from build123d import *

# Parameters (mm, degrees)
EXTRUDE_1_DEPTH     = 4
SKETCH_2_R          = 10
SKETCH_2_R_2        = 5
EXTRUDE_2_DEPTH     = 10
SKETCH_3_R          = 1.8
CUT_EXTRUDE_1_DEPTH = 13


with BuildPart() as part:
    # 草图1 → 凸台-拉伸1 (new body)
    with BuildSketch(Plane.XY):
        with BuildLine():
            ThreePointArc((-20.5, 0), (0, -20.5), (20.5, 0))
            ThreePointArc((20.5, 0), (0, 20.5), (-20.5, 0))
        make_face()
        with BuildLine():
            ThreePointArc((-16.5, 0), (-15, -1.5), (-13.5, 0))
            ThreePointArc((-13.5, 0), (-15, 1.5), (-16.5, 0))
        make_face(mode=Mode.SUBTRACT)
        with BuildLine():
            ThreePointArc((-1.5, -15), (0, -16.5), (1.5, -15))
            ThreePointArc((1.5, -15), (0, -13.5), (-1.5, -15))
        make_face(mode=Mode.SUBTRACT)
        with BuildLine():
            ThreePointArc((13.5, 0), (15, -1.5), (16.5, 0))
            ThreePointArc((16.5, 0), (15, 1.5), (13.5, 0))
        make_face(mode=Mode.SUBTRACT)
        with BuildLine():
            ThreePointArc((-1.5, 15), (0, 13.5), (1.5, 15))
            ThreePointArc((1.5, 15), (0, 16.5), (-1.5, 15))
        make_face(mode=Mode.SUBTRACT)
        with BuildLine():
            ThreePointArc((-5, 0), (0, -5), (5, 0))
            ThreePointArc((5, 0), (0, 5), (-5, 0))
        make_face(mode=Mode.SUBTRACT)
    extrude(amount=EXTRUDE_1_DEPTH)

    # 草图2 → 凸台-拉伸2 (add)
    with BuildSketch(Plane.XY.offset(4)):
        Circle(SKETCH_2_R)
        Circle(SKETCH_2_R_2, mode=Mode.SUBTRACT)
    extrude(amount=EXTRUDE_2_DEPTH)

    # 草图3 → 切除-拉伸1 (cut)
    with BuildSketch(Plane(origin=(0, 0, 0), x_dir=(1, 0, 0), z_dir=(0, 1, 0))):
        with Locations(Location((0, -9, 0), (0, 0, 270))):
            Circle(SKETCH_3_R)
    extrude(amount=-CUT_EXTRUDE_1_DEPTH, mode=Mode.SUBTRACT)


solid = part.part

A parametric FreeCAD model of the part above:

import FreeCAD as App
import Part
import Sketcher

doc = App.newDocument("Part")
params = doc.addObject("Spreadsheet::Sheet", "Params")
for row, (alias, value) in enumerate([
    ("sketch1_diameter", "41 mm"),
    ("sketch1_diameter2", "3 mm"),
    ("sketch1_diameter3", "10 mm"),
    ("pad1_length", "4 mm"),
    ("sketch2_diameter", "20 mm"),
    ("sketch2_diameter2", "10 mm"),
    ("pad2_length", "10 mm"),
    ("sketch3_diameter", "3.6 mm"),
    ("pocket1_length", "13 mm"),
], start=1):
    params.set(f"A{row}", alias)
    params.set(f"B{row}", "=" + value)
    params.setAlias(f"B{row}", alias)

body = doc.addObject("PartDesign::Body", "Body")

sketch1 = body.newObject("Sketcher::SketchObject", "Sketch")
sketch1.AttachmentSupport = (doc.getObject("XY_Plane"), [""])
sketch1.MapMode = "FlatFace"
sketch1.addGeometry([
    Part.Circle(App.Vector(0, 0, 0), App.Vector(0, 0, 1), 20.5),
    Part.Circle(App.Vector(0, -15, 0), App.Vector(0, 0, 1), 1.5),
    Part.Circle(App.Vector(-15, 0, 0), App.Vector(0, 0, 1), 1.5),
    Part.Circle(App.Vector(0, 0, 0), App.Vector(0, 0, 1), 5),
    Part.Circle(App.Vector(15, 0, 0), App.Vector(0, 0, 1), 1.5),
    Part.Circle(App.Vector(0, 15, 0), App.Vector(0, 0, 1), 1.5),
], False)
sketch1.addConstraint([
    Sketcher.Constraint("Coincident", 0, 3, -1, 1),
    Sketcher.Constraint("Coincident", 3, 3, -1, 1),
    Sketcher.Constraint("Equal", 1, 2),
    Sketcher.Constraint("Equal", 2, 4),
    Sketcher.Constraint("Equal", 4, 5),
    Sketcher.Constraint("Symmetric", 2, 3, 4, 3, -1, 1),
    Sketcher.Constraint("Symmetric", 1, 3, 5, 3, -1, 1),
    Sketcher.Constraint("PointOnObject", 1, 3, -2),
    Sketcher.Constraint("PointOnObject", 2, 3, -1),
    Sketcher.Constraint("Diameter", 0, 41.0),
    Sketcher.Constraint("Diameter", 1, 3.0),
    Sketcher.Constraint("Diameter", 3, 10.0),
    Sketcher.Constraint("DistanceY", 1, 3, -1, 1, 15.0),
    Sketcher.Constraint("DistanceX", 2, 3, -1, 1, 15.0),
])
sketch1.setExpression("Constraints[9]", "Params.sketch1_diameter")
sketch1.setExpression("Constraints[10]", "Params.sketch1_diameter2")
sketch1.setExpression("Constraints[11]", "Params.sketch1_diameter3")
pad1 = body.newObject("PartDesign::Pad", "Pad")
pad1.Profile = sketch1
pad1.setExpression("Length", "Params.pad1_length")

sketch2 = body.newObject("Sketcher::SketchObject", "Sketch001")
sketch2.AttachmentSupport = (doc.getObject("XY_Plane"), [""])
sketch2.MapMode = "FlatFace"
sketch2.AttachmentOffset = App.Placement(App.Vector(0, 0, 4), App.Rotation())
sketch2.addGeometry([
    Part.Circle(App.Vector(0, 0, 0), App.Vector(0, 0, 1), 10),
    Part.Circle(App.Vector(0, 0, 0), App.Vector(0, 0, 1), 5),
], False)
sketch2.addConstraint([
    Sketcher.Constraint("Coincident", 0, 3, -1, 1),
    Sketcher.Constraint("Coincident", 1, 3, -1, 1),
    Sketcher.Constraint("Diameter", 0, 20.0),
    Sketcher.Constraint("Diameter", 1, 10.0),
])
sketch2.setExpression("Constraints[2]", "Params.sketch2_diameter")
sketch2.setExpression("Constraints[3]", "Params.sketch2_diameter2")
pad2 = body.newObject("PartDesign::Pad", "Pad001")
pad2.Profile = sketch2
pad2.setExpression("Length", "Params.pad2_length")

sketch3 = body.newObject("Sketcher::SketchObject", "Sketch002")
sketch3.AttachmentSupport = (doc.getObject("XZ_Plane"), [""])
sketch3.MapMode = "FlatFace"
sketch3.addGeometry(Part.Circle(App.Vector(0, 9, 0), App.Vector(0, 0, 1), 1.8), False)
sketch3.addConstraint([
    Sketcher.Constraint("PointOnObject", 0, 3, -2),
    Sketcher.Constraint("Diameter", 0, 3.6),
    Sketcher.Constraint("DistanceY", -1, 1, 0, 3, 9.0),
])
sketch3.setExpression("Constraints[1]", "Params.sketch3_diameter")
pocket1 = body.newObject("PartDesign::Pocket", "Pocket")
pocket1.Profile = sketch3
pocket1.setExpression("Length", "Params.pocket1_length")
pocket1.Reversed = True

doc.recompute()
